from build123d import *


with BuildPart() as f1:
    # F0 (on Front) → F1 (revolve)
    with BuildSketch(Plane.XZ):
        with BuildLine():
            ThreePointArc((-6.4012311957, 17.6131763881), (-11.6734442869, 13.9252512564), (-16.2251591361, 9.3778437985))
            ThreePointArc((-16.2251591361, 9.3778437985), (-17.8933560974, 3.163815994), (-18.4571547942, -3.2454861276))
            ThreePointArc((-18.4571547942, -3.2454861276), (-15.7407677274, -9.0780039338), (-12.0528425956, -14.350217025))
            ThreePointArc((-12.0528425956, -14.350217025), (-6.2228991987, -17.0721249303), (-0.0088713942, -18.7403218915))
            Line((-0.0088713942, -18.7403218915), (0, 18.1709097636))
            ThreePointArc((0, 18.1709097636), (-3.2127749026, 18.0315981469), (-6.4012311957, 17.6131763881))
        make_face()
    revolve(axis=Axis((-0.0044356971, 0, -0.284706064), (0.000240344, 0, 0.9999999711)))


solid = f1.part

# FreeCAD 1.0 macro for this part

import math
import FreeCAD as App
import Part
import Sketcher
from FreeCAD import Vector
Q = App.Units.Quantity

doc = App.newDocument("Part")
body = doc.addObject("PartDesign::Body", "Body")

sketch1 = body.newObject("Sketcher::SketchObject", "Sketch")
sketch1.AttachmentSupport = (doc.getObject("XZ_Plane"), [""])
sketch1.MapMode = "FlatFace"
sketch1.addGeometry(Part.ArcOfCircle(Part.Circle(Vector(12, -14, 0), Vector(0, 0, 1), 37), math.radians(120), math.radians(140)), False)
sketch1.addGeometry(Part.ArcOfCircle(Part.Circle(Vector(18, -3, 0), Vector(0, 0, 1), 37), math.radians(160), math.radians(180)), False)
sketch1.addGeometry(Part.ArcOfCircle(Part.Circle(Vector(16, 9, 0), Vector(0, 0, 1), 37), math.radians(-160.03), math.radians(-140.03)), False)
sketch1.addGeometry(Part.ArcOfCircle(Part.Circle(Vector(6, 18, 0), Vector(0, 0, 1), 37), math.radians(-120), math.radians(-100)), False)
sketch1.addGeometry(Part.LineSegment(Vector(0, -19, 0), Vector(0, 18, 0)), False)
sketch1.addGeometry(Part.ArcOfCircle(Part.Circle(Vector(0, -19, 0), Vector(0, 0, 1), 37), math.radians(89.99), math.radians(99.97)), False)
sketch1.addGeometry(Part.LineSegment(Vector(0, -19, 0), Vector(0, 18, 0)), True)
sketch1.addConstraint(Sketcher.Constraint("Coincident", 0, 2, 1, 1))
sketch1.addConstraint(Sketcher.Constraint("Coincident", 1, 2, 2, 1))
sketch1.addConstraint(Sketcher.Constraint("Coincident", 2, 2, 3, 1))
sketch1.addConstraint(Sketcher.Constraint("Coincident", 3, 2, 4, 1))
sketch1.addConstraint(Sketcher.Constraint("Coincident", 4, 2, 5, 1))
sketch1.addConstraint(Sketcher.Constraint("Coincident", 5, 2, 0, 1))
sketch1.addConstraint(Sketcher.Constraint("Coincident", 3, 2, 5, 3))
sketch1.addConstraint(Sketcher.Constraint("Coincident", 6, 1, 5, 3))
sketch1.addConstraint(Sketcher.Constraint("Coincident", 6, 2, 4, 2))
sketch1.addConstraint(Sketcher.Constraint("Equal", 0, 1))
sketch1.addConstraint(Sketcher.Constraint("Equal", 1, 2))
sketch1.addConstraint(Sketcher.Constraint("Equal", 2, 3))
sketch1.addConstraint(Sketcher.Constraint("Equal", 3, 5))
sketch1.addConstraint(Sketcher.Constraint("PointOnObject", 4, 2, -2))
sketch1.addConstraint(Sketcher.Constraint("Radius", 0, Q("36.911233 mm")))
sketch1.addConstraint(Sketcher.Constraint("DistanceY", 0, 3, 2, 3, Q("23.7241 mm")))
sketch1.addConstraint(Sketcher.Constraint("DistanceY", 5, 3, 0, 3, Q("4.3787 mm")))
sketch1.addConstraint(Sketcher.Constraint("DistanceX", 5, 3, 2, 3, Q("16.242902 mm")))
sketch1.addConstraint(Sketcher.Constraint("DistanceY", 3, 3, 4, 2, Q("0.563802 mm")))
sketch1.addConstraint(Sketcher.Constraint("DistanceY", 2, 3, 5, 2, Q("8.250698 mm")))
sketch1.addConstraint(Sketcher.Constraint("DistanceX", -1, 1, 0, 3, Q("12.039251 mm")))
sketch1.addConstraint(Sketcher.Constraint("DistanceY", 0, 3, -1, 1, Q("14.361622 mm")))
sketch1.addConstraint(Sketcher.Constraint("DistanceY", 1, 3, -1, 1, Q("3.262959 mm")))
sketch1.addConstraint(Sketcher.Constraint("DistanceX", 0, 2, -1, 1, Q("16.225159 mm")))
revolution = body.newObject("PartDesign::Revolution", "Revolution")
revolution.Profile = sketch1
revolution.ReferenceAxis = (sketch1, ["Axis0"])
revolution.Angle = 360

doc.recompute()
